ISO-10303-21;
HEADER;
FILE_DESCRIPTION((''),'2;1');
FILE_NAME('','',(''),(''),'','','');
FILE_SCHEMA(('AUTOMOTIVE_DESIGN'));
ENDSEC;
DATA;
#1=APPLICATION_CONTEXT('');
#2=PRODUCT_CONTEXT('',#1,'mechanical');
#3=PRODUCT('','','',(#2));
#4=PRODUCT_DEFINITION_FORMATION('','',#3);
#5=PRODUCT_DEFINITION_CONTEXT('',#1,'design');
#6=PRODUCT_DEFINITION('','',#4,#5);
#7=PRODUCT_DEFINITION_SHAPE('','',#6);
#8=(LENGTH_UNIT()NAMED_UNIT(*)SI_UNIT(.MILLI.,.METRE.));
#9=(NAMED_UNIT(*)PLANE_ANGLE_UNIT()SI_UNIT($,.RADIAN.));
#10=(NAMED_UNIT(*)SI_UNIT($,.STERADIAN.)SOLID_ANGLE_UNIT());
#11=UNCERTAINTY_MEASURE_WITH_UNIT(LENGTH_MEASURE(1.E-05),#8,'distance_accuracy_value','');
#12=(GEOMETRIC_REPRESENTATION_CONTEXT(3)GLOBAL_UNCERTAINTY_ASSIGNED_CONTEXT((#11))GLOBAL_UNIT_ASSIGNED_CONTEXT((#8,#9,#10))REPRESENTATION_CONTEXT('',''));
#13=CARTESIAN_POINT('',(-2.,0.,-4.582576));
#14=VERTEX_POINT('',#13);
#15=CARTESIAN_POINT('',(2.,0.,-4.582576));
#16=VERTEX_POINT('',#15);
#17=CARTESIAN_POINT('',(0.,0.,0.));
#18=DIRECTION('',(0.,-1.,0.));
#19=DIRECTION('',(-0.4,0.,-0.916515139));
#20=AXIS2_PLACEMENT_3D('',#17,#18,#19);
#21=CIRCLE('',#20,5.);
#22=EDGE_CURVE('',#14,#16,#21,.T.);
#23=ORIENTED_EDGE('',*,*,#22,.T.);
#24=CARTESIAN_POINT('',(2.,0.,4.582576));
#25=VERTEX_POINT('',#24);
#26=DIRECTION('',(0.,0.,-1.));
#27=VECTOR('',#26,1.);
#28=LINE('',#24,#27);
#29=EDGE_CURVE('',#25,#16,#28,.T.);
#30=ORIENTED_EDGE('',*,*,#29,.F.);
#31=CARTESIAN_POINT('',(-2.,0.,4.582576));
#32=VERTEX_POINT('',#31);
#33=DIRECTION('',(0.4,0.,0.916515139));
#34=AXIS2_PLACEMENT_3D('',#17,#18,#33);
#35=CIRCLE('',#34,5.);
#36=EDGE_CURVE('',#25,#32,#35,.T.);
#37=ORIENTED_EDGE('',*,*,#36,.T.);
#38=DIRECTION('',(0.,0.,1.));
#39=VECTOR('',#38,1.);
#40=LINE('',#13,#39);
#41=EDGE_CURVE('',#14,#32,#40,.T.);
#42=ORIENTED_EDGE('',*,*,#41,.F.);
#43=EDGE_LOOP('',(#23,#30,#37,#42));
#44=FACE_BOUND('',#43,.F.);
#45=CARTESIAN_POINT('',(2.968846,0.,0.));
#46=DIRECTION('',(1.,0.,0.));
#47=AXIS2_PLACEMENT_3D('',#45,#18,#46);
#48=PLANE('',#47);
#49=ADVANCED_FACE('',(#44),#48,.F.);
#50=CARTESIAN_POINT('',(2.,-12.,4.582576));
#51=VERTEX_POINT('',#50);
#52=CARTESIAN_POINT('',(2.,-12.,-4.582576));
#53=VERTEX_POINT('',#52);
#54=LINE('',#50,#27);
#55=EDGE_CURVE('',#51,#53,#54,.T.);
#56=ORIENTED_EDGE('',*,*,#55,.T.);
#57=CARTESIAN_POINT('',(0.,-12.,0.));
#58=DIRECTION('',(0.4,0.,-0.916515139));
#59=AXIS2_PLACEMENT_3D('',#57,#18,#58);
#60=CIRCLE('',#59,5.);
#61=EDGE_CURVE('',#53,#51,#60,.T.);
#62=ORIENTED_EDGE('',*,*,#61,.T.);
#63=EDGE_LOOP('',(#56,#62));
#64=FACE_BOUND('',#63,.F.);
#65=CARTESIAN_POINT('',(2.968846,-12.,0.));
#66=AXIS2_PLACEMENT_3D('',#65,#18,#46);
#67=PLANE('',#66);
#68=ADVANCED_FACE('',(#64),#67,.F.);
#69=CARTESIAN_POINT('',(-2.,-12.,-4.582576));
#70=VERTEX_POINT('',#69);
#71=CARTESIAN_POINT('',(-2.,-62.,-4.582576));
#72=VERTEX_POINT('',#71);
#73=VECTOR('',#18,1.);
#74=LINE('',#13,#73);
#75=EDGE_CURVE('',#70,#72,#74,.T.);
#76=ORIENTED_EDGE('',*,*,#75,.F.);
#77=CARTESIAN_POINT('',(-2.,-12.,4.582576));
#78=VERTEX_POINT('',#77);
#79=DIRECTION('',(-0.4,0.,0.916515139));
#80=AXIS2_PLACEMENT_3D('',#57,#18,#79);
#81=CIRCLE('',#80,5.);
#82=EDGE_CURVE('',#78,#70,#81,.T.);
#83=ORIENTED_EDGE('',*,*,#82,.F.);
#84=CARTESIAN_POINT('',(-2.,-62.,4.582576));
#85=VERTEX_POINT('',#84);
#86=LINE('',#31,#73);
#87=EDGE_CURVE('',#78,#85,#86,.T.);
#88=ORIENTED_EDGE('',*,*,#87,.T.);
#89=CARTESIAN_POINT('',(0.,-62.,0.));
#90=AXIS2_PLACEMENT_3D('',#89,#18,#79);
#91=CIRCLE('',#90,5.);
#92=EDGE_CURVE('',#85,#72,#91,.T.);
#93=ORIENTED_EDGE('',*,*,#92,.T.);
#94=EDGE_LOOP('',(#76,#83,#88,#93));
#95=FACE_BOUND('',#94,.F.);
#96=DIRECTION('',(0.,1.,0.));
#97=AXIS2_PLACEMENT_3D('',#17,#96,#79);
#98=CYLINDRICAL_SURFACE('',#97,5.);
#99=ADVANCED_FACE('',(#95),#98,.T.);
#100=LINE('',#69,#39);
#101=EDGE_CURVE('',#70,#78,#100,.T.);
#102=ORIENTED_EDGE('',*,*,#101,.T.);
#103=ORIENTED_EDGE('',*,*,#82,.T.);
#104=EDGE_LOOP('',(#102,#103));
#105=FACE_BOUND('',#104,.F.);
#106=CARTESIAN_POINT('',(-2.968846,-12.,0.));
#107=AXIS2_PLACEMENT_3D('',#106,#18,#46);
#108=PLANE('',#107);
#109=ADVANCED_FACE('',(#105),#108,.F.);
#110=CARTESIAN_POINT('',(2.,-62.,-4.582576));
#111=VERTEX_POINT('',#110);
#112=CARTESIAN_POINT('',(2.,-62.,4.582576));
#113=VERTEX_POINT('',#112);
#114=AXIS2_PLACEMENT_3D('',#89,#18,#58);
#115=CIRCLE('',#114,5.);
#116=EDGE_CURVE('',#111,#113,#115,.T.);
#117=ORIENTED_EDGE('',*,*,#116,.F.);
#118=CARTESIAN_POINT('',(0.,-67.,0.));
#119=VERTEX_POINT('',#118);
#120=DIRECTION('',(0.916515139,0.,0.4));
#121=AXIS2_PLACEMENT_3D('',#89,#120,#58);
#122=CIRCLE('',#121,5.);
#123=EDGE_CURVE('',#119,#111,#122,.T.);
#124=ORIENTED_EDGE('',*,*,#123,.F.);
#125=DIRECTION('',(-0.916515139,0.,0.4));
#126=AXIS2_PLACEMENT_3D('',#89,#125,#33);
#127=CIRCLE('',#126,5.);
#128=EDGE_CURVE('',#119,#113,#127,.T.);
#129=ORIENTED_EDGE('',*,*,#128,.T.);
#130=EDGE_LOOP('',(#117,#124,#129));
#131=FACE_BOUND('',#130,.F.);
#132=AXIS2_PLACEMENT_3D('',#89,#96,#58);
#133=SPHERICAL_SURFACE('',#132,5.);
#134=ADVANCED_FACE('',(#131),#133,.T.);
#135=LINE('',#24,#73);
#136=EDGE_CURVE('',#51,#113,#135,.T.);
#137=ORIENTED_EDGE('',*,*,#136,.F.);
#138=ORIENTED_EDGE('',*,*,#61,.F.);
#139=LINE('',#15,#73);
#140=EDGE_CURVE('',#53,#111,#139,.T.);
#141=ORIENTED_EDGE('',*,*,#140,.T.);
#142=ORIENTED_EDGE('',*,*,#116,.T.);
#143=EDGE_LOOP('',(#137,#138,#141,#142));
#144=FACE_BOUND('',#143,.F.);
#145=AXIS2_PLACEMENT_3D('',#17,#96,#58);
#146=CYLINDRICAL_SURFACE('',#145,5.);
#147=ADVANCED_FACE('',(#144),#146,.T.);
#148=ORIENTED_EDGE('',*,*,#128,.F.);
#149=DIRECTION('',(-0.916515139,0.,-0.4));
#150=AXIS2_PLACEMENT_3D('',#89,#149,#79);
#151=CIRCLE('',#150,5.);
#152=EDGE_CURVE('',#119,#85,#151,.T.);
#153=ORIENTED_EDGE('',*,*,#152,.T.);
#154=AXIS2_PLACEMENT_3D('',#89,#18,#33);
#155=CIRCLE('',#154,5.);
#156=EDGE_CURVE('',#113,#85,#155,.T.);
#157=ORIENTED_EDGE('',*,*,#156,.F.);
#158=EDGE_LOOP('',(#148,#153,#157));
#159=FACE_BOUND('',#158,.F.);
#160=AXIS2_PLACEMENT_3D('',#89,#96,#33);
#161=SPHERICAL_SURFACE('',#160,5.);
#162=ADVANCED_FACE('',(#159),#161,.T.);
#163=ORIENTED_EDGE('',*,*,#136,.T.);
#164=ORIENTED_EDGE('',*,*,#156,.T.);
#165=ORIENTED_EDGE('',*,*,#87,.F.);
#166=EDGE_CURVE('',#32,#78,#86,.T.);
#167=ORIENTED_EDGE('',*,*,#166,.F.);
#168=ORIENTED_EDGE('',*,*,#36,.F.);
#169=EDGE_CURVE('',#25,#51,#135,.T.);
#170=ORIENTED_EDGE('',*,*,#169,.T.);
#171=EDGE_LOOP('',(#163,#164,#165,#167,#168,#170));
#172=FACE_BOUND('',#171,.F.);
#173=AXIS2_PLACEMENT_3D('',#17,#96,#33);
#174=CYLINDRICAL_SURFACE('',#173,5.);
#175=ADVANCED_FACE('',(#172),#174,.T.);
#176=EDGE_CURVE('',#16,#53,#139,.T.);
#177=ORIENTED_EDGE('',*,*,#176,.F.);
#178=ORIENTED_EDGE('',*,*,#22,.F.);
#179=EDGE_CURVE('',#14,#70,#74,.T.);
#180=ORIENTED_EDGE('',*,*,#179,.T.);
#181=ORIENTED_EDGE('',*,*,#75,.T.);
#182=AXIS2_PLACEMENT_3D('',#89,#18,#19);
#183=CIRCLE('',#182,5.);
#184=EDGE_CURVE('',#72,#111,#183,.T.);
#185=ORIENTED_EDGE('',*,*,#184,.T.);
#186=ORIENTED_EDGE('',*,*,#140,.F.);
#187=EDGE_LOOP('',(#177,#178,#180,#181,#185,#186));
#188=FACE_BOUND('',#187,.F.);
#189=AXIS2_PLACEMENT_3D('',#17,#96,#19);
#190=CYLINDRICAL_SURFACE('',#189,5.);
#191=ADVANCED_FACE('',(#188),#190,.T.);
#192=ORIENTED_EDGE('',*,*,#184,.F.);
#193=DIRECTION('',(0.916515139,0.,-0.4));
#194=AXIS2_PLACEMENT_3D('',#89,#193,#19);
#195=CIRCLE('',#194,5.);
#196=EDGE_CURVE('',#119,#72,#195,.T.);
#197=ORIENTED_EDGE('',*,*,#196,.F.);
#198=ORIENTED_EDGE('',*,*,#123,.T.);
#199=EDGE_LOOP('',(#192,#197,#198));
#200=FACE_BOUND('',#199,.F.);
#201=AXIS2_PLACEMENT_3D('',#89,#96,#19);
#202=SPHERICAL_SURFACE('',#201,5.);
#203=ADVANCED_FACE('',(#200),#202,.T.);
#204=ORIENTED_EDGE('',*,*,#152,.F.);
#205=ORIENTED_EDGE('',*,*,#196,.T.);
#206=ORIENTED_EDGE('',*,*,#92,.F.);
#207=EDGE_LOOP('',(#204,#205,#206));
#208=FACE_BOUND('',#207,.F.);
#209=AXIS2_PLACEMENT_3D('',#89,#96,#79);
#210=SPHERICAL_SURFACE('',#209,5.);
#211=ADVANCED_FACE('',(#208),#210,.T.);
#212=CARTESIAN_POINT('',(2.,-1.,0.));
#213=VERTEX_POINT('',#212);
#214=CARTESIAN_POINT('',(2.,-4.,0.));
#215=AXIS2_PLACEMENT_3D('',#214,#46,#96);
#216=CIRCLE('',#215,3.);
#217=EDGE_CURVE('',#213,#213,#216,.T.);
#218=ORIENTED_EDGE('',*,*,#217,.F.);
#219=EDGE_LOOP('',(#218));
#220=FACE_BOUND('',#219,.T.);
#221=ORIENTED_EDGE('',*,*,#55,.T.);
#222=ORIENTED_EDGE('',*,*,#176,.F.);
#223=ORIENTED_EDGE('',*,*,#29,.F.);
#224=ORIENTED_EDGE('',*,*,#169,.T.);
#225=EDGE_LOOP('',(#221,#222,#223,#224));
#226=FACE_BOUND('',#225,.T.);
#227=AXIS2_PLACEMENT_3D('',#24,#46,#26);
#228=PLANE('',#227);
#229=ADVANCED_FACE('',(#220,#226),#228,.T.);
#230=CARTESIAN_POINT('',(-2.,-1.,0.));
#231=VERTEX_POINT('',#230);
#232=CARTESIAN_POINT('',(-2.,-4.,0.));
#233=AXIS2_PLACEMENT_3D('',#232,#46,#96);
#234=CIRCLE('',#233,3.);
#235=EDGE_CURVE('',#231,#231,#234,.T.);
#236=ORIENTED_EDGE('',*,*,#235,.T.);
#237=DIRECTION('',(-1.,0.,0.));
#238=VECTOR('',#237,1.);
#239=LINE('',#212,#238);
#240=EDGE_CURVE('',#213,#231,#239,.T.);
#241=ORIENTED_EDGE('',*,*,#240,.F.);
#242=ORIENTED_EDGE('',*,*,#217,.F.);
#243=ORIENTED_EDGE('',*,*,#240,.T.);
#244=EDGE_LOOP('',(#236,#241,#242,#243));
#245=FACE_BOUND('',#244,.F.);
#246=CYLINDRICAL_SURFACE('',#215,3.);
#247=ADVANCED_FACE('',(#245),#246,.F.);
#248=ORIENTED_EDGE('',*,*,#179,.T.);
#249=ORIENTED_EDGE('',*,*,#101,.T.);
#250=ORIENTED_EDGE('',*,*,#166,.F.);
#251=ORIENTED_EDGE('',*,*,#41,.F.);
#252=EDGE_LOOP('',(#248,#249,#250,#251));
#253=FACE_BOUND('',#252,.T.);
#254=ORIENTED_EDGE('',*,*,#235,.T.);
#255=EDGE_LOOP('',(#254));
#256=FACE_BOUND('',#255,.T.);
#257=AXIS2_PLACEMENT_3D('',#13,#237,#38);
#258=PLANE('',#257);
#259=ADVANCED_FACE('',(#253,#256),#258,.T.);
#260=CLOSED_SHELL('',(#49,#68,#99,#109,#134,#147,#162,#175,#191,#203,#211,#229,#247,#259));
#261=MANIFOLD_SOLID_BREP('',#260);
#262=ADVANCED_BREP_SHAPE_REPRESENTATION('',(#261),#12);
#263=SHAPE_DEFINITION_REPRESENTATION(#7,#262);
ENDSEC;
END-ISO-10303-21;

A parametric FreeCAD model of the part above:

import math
import FreeCAD as App
import Part
import Sketcher
Q = App.Units.Quantity


def edges_at(feature, points):
    """Names of the edges that pass closest to the given points."""
    edges = feature.Shape.Edges
    near = lambda p: min(range(len(edges)), key=lambda i: edges[i].distToShape(Part.Vertex(*p))[0])
    return sorted({f"Edge{near(p) + 1}" for p in points})

doc = App.newDocument("Part")
body = doc.addObject("PartDesign::Body", "Body")

# Sketch on XZ plane
sketch1 = doc.addObject("Sketcher::SketchObject", "Sketch")
body.addObject(sketch1)
sketch1.AttachmentSupport = (doc.XZ_Plane, [""])
sketch1.MapMode = "FlatFace"
sketch1.addGeometry([
    Part.ArcOfCircle(Part.Circle(App.Vector(0, 0, 0), App.Vector(0, 0, 1), 5), math.radians(-66.421822), math.radians(66.421822)),
    Part.ArcOfCircle(Part.Circle(App.Vector(0, 0, 0), App.Vector(0, 0, 1), 5), math.radians(66.421822), math.radians(113.578178)),
    Part.ArcOfCircle(Part.Circle(App.Vector(0, 0, 0), App.Vector(0, 0, 1), 5), math.radians(113.578178), math.radians(246.421822)),
    Part.ArcOfCircle(Part.Circle(App.Vector(0, 0, 0), App.Vector(0, 0, 1), 5), math.radians(-113.578178), math.radians(-66.421822)),
], False)
sketch1.addConstraint([
    Sketcher.Constraint("Tangent", 0, 2, 1, 1),
    Sketcher.Constraint("Tangent", 1, 2, 2, 1),
    Sketcher.Constraint("Tangent", 2, 2, 3, 1),
    Sketcher.Constraint("Tangent", 3, 2, 0, 1),
    Sketcher.Constraint("Coincident", 0, 3, -1, 1),
    Sketcher.Constraint("Equal", 0, 1),
    Sketcher.Constraint("Horizontal", 0, 2, 1, 2),
    Sketcher.Constraint("Horizontal", 2, 2, 3, 2),
    Sketcher.Constraint("Vertical", 1, 2, 2, 2),
    Sketcher.Constraint("Radius", 0, Q("5 mm")),
    Sketcher.Constraint("DistanceX", -1, 1, 0, 2, Q("2 mm")),
])
pad1 = doc.addObject("PartDesign::Pad", "Pad")
body.addObject(pad1)
pad1.Profile = sketch1
pad1.Length = 67

# Sketch on XZ plane
sketch2 = doc.addObject("Sketcher::SketchObject", "Sketch001")
body.addObject(sketch2)
sketch2.AttachmentSupport = (doc.XZ_Plane, [""])
sketch2.MapMode = "FlatFace"
sketch2.addGeometry([
    Part.LineSegment(App.Vector(-2, -4.582576, 0), App.Vector(-2, 4.582576, 0)),
    Part.ArcOfCircle(Part.Circle(App.Vector(0, 0, 0), App.Vector(0, 0, 1), 5), math.radians(113.578178), math.radians(246.421822)),
    Part.ArcOfCircle(Part.Circle(App.Vector(0, 0, 0), App.Vector(0, 0, 1), 5), math.radians(-66.421822), math.radians(66.421822)),
    Part.LineSegment(App.Vector(2, 4.582576, 0), App.Vector(2, -4.582576, 0)),
], False)
sketch2.addConstraint([
    Sketcher.Constraint("Coincident", 0, 1, 1, 2),
    Sketcher.Constraint("Coincident", 1, 1, 0, 2),
    Sketcher.Constraint("Coincident", 2, 1, 3, 2),
    Sketcher.Constraint("Coincident", 3, 1, 2, 2),
    Sketcher.Constraint("Vertical", 0),
    Sketcher.Constraint("Vertical", 3),
    Sketcher.Constraint("Coincident", 1, 3, -1, 1),
    Sketcher.Constraint("Coincident", 2, 3, -1, 1),
    Sketcher.Constraint("Equal", 1, 2),
    Sketcher.Constraint("Horizontal", 0, 1, 2, 1),
    Sketcher.Constraint("Radius", 1, Q("5 mm")),
    Sketcher.Constraint("DistanceX", 0, 1, -1, 1, Q("2 mm")),
])
pocket1 = doc.addObject("PartDesign::Pocket", "Pocket")
body.addObject(pocket1)
pocket1.Profile = sketch2
pocket1.Length = 12
pocket1.Reversed = True

# Sketch on YZ plane
sketch3 = doc.addObject("Sketcher::SketchObject", "Sketch002")
body.addObject(sketch3)
sketch3.AttachmentSupport = (doc.YZ_Plane, [""])
sketch3.MapMode = "FlatFace"
sketch3.AttachmentOffset = App.Placement(App.Vector(0, 0, 2), App.Rotation())
sketch3.addGeometry(Part.Circle(App.Vector(-4, 0, 0), App.Vector(0, 0, 1), 3), False)
sketch3.addConstraint([
    Sketcher.Constraint("PointOnObject", 0, 3, -1),
    Sketcher.Constraint("Diameter", 0, Q("6 mm")),
    Sketcher.Constraint("DistanceX", 0, 3, -1, 1, Q("4 mm")),
])
pocket2 = doc.addObject("PartDesign::Pocket", "Pocket001")
body.addObject(pocket2)
pocket2.Profile = sketch3
pocket2.Length = 25
doc.recompute()

fillet = doc.addObject("PartDesign::Fillet", "Fillet")
body.addObject(fillet)
fillet.Base = (pocket2, edges_at(pocket2, [(0, -67, -5)]))
fillet.Radius = 5

doc.recompute()
